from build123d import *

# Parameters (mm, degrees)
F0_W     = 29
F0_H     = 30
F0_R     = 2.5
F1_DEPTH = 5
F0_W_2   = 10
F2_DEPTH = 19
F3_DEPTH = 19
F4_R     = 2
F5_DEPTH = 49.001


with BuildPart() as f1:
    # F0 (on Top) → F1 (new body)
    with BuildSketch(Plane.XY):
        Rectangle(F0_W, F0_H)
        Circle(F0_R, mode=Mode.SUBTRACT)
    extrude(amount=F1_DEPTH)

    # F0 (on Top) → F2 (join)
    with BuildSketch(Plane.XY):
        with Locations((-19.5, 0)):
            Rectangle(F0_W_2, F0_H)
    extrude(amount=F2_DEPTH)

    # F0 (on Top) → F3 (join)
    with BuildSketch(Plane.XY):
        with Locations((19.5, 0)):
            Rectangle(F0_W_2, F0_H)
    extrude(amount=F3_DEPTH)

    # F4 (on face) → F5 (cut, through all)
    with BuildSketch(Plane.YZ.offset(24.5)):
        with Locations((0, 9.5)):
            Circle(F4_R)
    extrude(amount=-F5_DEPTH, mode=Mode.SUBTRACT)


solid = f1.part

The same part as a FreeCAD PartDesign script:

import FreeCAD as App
import Part
import Sketcher
from FreeCAD import Vector
Q = App.Units.Quantity

doc = App.newDocument("Part")
body = doc.addObject("PartDesign::Body", "Body")

# Sketch on XY plane
sketch1 = doc.addObject("Sketcher::SketchObject", "Sketch")
body.addObject(sketch1)
sketch1.AttachmentSupport = (doc.XY_Plane, [""])
sketch1.MapMode = "FlatFace"
sketch1.addGeometry([
    Part.LineSegment(Vector(-14.5, 15, 0), Vector(-14.5, -15, 0)),  # 0
    Part.LineSegment(Vector(-14.5, -15, 0), Vector(14.5, -15, 0)),  # 1
    Part.LineSegment(Vector(14.5, -15, 0), Vector(14.5, 15, 0)),  # 2
    Part.LineSegment(Vector(14.5, 15, 0), Vector(-14.5, 15, 0)),  # 3
    Part.Circle(Vector(0, 0, 0), Vector(0, 0, 1), 2.5),  # 4
], False)
sketch1.addConstraint([
    Sketcher.Constraint("Coincident", 0, 2, 1, 1),
    Sketcher.Constraint("Coincident", 1, 2, 2, 1),
    Sketcher.Constraint("Coincident", 2, 2, 3, 1),
    Sketcher.Constraint("Coincident", 3, 2, 0, 1),
    Sketcher.Constraint("Vertical", 0),
    Sketcher.Constraint("Horizontal", 1),
    Sketcher.Constraint("Vertical", 2),
    Sketcher.Constraint("Horizontal", 3),
    Sketcher.Constraint("Coincident", 4, 3, -1, 1),
    Sketcher.Constraint("Symmetric", 0, 2, 2, 2, -1, 1),
    Sketcher.Constraint("Diameter", 4, Q("5 mm")),
    Sketcher.Constraint("DistanceX", 1, 1, 1, 2, Q("29 mm")),
    Sketcher.Constraint("DistanceY", 0, 2, 0, 1, Q("30 mm")),
])
pad1 = doc.addObject("PartDesign::Pad", "Pad")
body.addObject(pad1)
pad1.Profile = sketch1
pad1.Length = 5

# Sketch on XY plane
sketch2 = doc.addObject("Sketcher::SketchObject", "Sketch001")
body.addObject(sketch2)
sketch2.AttachmentSupport = (doc.XY_Plane, [""])
sketch2.MapMode = "FlatFace"
sketch2.addGeometry([
    Part.LineSegment(Vector(-24, 15, 0), Vector(-24, -15, 0)),
    Part.LineSegment(Vector(-24, -15, 0), Vector(-14, -15, 0)),
    Part.LineSegment(Vector(-14, -15, 0), Vector(-14, 15, 0)),
    Part.LineSegment(Vector(-14, 15, 0), Vector(-24, 15, 0)),
], False)
sketch2.addConstraint([
    Sketcher.Constraint("Coincident", 0, 2, 1, 1),
    Sketcher.Constraint("Coincident", 1, 2, 2, 1),
    Sketcher.Constraint("Coincident", 2, 2, 3, 1),
    Sketcher.Constraint("Coincident", 3, 2, 0, 1),
    Sketcher.Constraint("Vertical", 0),
    Sketcher.Constraint("Horizontal", 1),
    Sketcher.Constraint("Vertical", 2),
    Sketcher.Constraint("Horizontal", 3),
    Sketcher.Constraint("DistanceX", 1, 1, 1, 2, Q("10 mm")),
    Sketcher.Constraint("DistanceY", 0, 2, 0, 1, Q("30 mm")),
    Sketcher.Constraint("DistanceY", 0, 2, -1, 1, Q("15 mm")),
    Sketcher.Constraint("DistanceX", 0, 2, -1, 1, Q("24.5 mm")),
])
pad2 = doc.addObject("PartDesign::Pad", "Pad001")
body.addObject(pad2)
pad2.Profile = sketch2
pad2.Length = 19

# Sketch on XY plane
sketch3 = doc.addObject("Sketcher::SketchObject", "Sketch002")
body.addObject(sketch3)
sketch3.AttachmentSupport = (doc.XY_Plane, [""])
sketch3.MapMode = "FlatFace"
sketch3.addGeometry([
    Part.LineSegment(Vector(14, 15, 0), Vector(14, -15, 0)),
    Part.LineSegment(Vector(14, -15, 0), Vector(24, -15, 0)),
    Part.LineSegment(Vector(24, -15, 0), Vector(24, 15, 0)),
    Part.LineSegment(Vector(24, 15, 0), Vector(14, 15, 0)),
], False)
sketch3.addConstraint([
    Sketcher.Constraint("Coincident", 0, 2, 1, 1),
    Sketcher.Constraint("Coincident", 1, 2, 2, 1),
    Sketcher.Constraint("Coincident", 2, 2, 3, 1),
    Sketcher.Constraint("Coincident", 3, 2, 0, 1),
    Sketcher.Constraint("Vertical", 0),
    Sketcher.Constraint("Horizontal", 1),
    Sketcher.Constraint("Vertical", 2),
    Sketcher.Constraint("Horizontal", 3),
    Sketcher.Constraint("DistanceX", 1, 1, 1, 2, Q("10 mm")),
    Sketcher.Constraint("DistanceY", 0, 2, 0, 1, Q("30 mm")),
    Sketcher.Constraint("DistanceY", 0, 2, -1, 1, Q("15 mm")),
    Sketcher.Constraint("DistanceX", -1, 1, 0, 2, Q("14.5 mm")),
])
pad3 = doc.addObject("PartDesign::Pad", "Pad002")
body.addObject(pad3)
pad3.Profile = sketch3
pad3.Length = 19

# Sketch on YZ plane
sketch4 = doc.addObject("Sketcher::SketchObject", "Sketch003")
body.addObject(sketch4)
sketch4.AttachmentSupport = (doc.YZ_Plane, [""])
sketch4.MapMode = "FlatFace"
sketch4.AttachmentOffset = App.Placement(Vector(0, 0, 24.5), App.Rotation())
sketch4.addGeometry(Part.Circle(Vector(0, 9.5, 0), Vector(0, 0, 1), 2), False)
sketch4.addConstraint([
    Sketcher.Constraint("PointOnObject", 0, 3, -2),
    Sketcher.Constraint("Diameter", 0, Q("4 mm")),
    Sketcher.Constraint("DistanceY", -1, 1, 0, 3, Q("9.5 mm")),
])
pocket1 = doc.addObject("PartDesign::Pocket", "Pocket")
body.addObject(pocket1)
pocket1.Profile = sketch4
pocket1.Type = "ThroughAll"

doc.recompute()
